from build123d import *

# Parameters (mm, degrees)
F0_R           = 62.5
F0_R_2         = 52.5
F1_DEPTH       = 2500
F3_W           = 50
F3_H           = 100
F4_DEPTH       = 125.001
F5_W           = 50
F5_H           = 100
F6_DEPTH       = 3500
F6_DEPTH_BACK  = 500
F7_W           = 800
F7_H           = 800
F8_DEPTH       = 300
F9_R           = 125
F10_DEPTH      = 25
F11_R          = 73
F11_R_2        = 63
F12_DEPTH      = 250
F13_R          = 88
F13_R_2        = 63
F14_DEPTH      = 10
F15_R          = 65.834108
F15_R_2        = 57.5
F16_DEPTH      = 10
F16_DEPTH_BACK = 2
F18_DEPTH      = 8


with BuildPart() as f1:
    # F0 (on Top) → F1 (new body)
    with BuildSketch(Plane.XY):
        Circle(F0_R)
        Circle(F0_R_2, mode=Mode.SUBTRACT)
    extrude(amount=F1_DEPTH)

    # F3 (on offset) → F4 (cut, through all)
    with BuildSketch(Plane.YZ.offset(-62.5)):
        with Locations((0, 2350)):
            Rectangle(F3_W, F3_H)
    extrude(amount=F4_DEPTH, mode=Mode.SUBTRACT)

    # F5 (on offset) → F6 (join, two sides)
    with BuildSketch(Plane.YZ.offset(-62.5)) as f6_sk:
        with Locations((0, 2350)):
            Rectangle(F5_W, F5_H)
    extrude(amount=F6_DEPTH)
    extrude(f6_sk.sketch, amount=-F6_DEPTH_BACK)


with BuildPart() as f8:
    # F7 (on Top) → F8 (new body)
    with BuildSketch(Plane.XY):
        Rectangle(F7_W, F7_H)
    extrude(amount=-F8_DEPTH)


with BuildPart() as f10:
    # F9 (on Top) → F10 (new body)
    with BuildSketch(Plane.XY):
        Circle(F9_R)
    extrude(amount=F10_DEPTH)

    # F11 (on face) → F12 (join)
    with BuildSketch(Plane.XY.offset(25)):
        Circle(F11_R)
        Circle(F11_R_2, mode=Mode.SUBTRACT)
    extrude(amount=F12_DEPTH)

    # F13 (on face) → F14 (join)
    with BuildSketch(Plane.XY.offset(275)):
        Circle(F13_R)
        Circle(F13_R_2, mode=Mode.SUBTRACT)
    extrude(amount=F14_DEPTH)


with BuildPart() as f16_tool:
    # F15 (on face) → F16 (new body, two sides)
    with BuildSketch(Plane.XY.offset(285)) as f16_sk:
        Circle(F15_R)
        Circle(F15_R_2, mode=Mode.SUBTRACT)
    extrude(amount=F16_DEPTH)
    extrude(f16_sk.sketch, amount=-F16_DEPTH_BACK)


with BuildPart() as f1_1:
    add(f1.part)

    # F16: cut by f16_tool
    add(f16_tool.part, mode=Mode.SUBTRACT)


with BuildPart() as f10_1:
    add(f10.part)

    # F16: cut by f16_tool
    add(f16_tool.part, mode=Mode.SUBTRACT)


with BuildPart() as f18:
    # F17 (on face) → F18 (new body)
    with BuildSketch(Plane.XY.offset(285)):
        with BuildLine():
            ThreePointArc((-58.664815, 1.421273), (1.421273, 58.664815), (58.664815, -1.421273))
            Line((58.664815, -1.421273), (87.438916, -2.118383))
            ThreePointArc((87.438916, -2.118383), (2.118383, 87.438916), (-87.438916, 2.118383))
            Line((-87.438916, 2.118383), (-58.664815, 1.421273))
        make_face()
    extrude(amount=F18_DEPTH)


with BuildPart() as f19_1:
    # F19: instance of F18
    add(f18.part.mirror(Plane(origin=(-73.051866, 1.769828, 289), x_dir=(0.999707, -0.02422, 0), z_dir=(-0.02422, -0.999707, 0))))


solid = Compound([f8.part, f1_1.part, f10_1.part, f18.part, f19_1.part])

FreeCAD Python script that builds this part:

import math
import FreeCAD as App
import Part
import Sketcher
from FreeCAD import Vector


def add_polygon(sketch, points):
    """Adds a closed chain of lines whose ends are joined by coincident constraints."""
    first, n = sketch.GeometryCount, len(points)
    for a, b in zip(points, points[1:] + points[:1]):
        sketch.addGeometry(Part.LineSegment(App.Vector(*a, 0), App.Vector(*b, 0)), False)
    for i in range(n):
        sketch.addConstraint(Sketcher.Constraint("Coincident", first + i, 2, first + (i + 1) % n, 1))

doc = App.newDocument("Part")
body = doc.addObject("PartDesign::Body", "Body")

sketch1 = body.newObject("Sketcher::SketchObject", "Sketch")
sketch1.AttachmentSupport = (doc.getObject("XY_Plane"), [""])
sketch1.MapMode = "FlatFace"
sketch1.addGeometry([
    Part.Circle(Vector(0, 0, 0), Vector(0, 0, 1), 62),
    Part.Circle(Vector(0, 0, 0), Vector(0, 0, 1), 52),
], False)
sketch1.addConstraint([
    Sketcher.Constraint("Coincident", 0, 3, -1, 1),
    Sketcher.Constraint("Coincident", 1, 3, -1, 1),
    Sketcher.Constraint("Diameter", 0, 125.0),
    Sketcher.Constraint("Diameter", 1, 105.0),
])
pad1 = body.newObject("PartDesign::Pad", "Pad")
pad1.Profile = sketch1
pad1.Length = 2500

sketch2 = body.newObject("Sketcher::SketchObject", "Sketch001")
sketch2.AttachmentSupport = (doc.getObject("YZ_Plane"), [""])
sketch2.MapMode = "FlatFace"
sketch2.AttachmentOffset = App.Placement(Vector(0, 0, -62.5), App.Rotation())
add_polygon(sketch2, [(-25, 2400), (-25, 2300), (25, 2300), (25, 2400)])
sketch2.addConstraint([
    Sketcher.Constraint("Vertical", 0),
    Sketcher.Constraint("Horizontal", 1),
    Sketcher.Constraint("Vertical", 2),
    Sketcher.Constraint("Horizontal", 3),
    Sketcher.Constraint("DistanceX", 1, 1, 1, 2, 50.0),
    Sketcher.Constraint("DistanceY", 0, 2, 0, 1, 100.0),
    Sketcher.Constraint("DistanceX", 0, 2, -1, 1, 25.0),
    Sketcher.Constraint("DistanceY", -1, 1, 0, 2, 2300.0),
])
pocket1 = body.newObject("PartDesign::Pocket", "Pocket")
pocket1.Profile = sketch2
pocket1.Type = "ThroughAll"
pocket1.Reversed = True

sketch3 = body.newObject("Sketcher::SketchObject", "Sketch002")
sketch3.AttachmentSupport = (doc.getObject("YZ_Plane"), [""])
sketch3.MapMode = "FlatFace"
sketch3.AttachmentOffset = App.Placement(Vector(0, 0, -62.5), App.Rotation())
add_polygon(sketch3, [(-25, 2400), (-25, 2300), (25, 2300), (25, 2400)])
sketch3.addConstraint([
    Sketcher.Constraint("Vertical", 0),
    Sketcher.Constraint("Horizontal", 1),
    Sketcher.Constraint("Vertical", 2),
    Sketcher.Constraint("Horizontal", 3),
    Sketcher.Constraint("DistanceX", 1, 1, 1, 2, 50.0),
    Sketcher.Constraint("DistanceY", 0, 2, 0, 1, 100.0),
    Sketcher.Constraint("DistanceX", 0, 2, -1, 1, 25.0),
    Sketcher.Constraint("DistanceY", -1, 1, 0, 2, 2300.0),
])
pad2 = body.newObject("PartDesign::Pad", "Pad001")
pad2.Profile = sketch3
pad2.Type = "TwoLengths"
pad2.Length = 3500
pad2.Length2 = 500
body2 = doc.addObject("PartDesign::Body", "Body001")

sketch4 = body2.newObject("Sketcher::SketchObject", "Sketch003")
sketch4.AttachmentSupport = (doc.getObject("XY_Plane001"), [""])
sketch4.MapMode = "FlatFace"
add_polygon(sketch4, [(-400, 400), (-400, -400), (400, -400), (400, 400)])
sketch4.addConstraint([
    Sketcher.Constraint("Vertical", 0),
    Sketcher.Constraint("Horizontal", 1),
    Sketcher.Constraint("Vertical", 2),
    Sketcher.Constraint("Horizontal", 3),
    Sketcher.Constraint("Symmetric", 0, 2, 2, 2, -1, 1),
    Sketcher.Constraint("Equal", 3, 0),
    Sketcher.Constraint("DistanceX", 1, 1, 1, 2, 800.0),
])
pad3 = body2.newObject("PartDesign::Pad", "Pad002")
pad3.Profile = sketch4
pad3.Length = 300
pad3.Reversed = True
body3 = doc.addObject("PartDesign::Body", "Body002")

sketch5 = body3.newObject("Sketcher::SketchObject", "Sketch004")
sketch5.AttachmentSupport = (doc.getObject("XY_Plane002"), [""])
sketch5.MapMode = "FlatFace"
sketch5.addGeometry(Part.Circle(Vector(0, 0, 0), Vector(0, 0, 1), 125), False)
sketch5.addConstraint([
    Sketcher.Constraint("Coincident", 0, 3, -1, 1),
    Sketcher.Constraint("Diameter", 0, 250.0),
])
pad4 = body3.newObject("PartDesign::Pad", "Pad003")
pad4.Profile = sketch5
pad4.Length = 25

sketch6 = body3.newObject("Sketcher::SketchObject", "Sketch005")
sketch6.AttachmentSupport = (doc.getObject("XY_Plane002"), [""])
sketch6.MapMode = "FlatFace"
sketch6.AttachmentOffset = App.Placement(Vector(0, 0, 25), App.Rotation())
sketch6.addGeometry([
    Part.Circle(Vector(0, 0, 0), Vector(0, 0, 1), 73),
    Part.Circle(Vector(0, 0, 0), Vector(0, 0, 1), 63),
], False)
sketch6.addConstraint([
    Sketcher.Constraint("Coincident", 0, 3, -1, 1),
    Sketcher.Constraint("Coincident", 1, 3, -1, 1),
    Sketcher.Constraint("Diameter", 0, 146.0),
    Sketcher.Constraint("Diameter", 1, 126.0),
])
pad5 = body3.newObject("PartDesign::Pad", "Pad004")
pad5.Profile = sketch6
pad5.Length = 250

sketch7 = body3.newObject("Sketcher::SketchObject", "Sketch006")
sketch7.AttachmentSupport = (doc.getObject("XY_Plane002"), [""])
sketch7.MapMode = "FlatFace"
sketch7.AttachmentOffset = App.Placement(Vector(0, 0, 275), App.Rotation())
sketch7.addGeometry([
    Part.Circle(Vector(0, 0, 0), Vector(0, 0, 1), 88),
    Part.Circle(Vector(0, 0, 0), Vector(0, 0, 1), 63),
], False)
sketch7.addConstraint([
    Sketcher.Constraint("Coincident", 0, 3, -1, 1),
    Sketcher.Constraint("Coincident", 1, 3, -1, 1),
    Sketcher.Constraint("Diameter", 0, 176.0),
    Sketcher.Constraint("Diameter", 1, 126.0),
])
pad6 = body3.newObject("PartDesign::Pad", "Pad005")
pad6.Profile = sketch7
pad6.Length = 10
body4 = doc.addObject("PartDesign::Body", "Body003")

sketch8 = body4.newObject("Sketcher::SketchObject", "Sketch007")
sketch8.AttachmentSupport = (doc.getObject("XY_Plane003"), [""])
sketch8.MapMode = "FlatFace"
sketch8.AttachmentOffset = App.Placement(Vector(0, 0, 285), App.Rotation())
sketch8.addGeometry([
    Part.Circle(Vector(0, 0, 0), Vector(0, 0, 1), 66),
    Part.Circle(Vector(0, 0, 0), Vector(0, 0, 1), 58),
], False)
sketch8.addConstraint([
    Sketcher.Constraint("Coincident", 0, 3, -1, 1),
    Sketcher.Constraint("Coincident", 1, 3, -1, 1),
    Sketcher.Constraint("Diameter", 1, 115.0),
    Sketcher.Constraint("Diameter", 0, 131.668216),
])
pad7 = body4.newObject("PartDesign::Pad", "Pad006")
pad7.Profile = sketch8
pad7.Type = "TwoLengths"
pad7.Length = 10
pad7.Length2 = 2
doc.recompute()

body5 = doc.addObject("PartDesign::Body", "Body004")
body5.BaseFeature = body4
boolean = body.newObject("PartDesign::Boolean", "Boolean")
boolean.Type = "Cut"
boolean.addObjects([body5])
doc.recompute()

boolean2 = body3.newObject("PartDesign::Boolean", "Boolean001")
boolean2.Type = "Cut"
boolean2.addObjects([body4])
body6 = doc.addObject("PartDesign::Body", "Body005")

sketch9 = body6.newObject("Sketcher::SketchObject", "Sketch008")
sketch9.AttachmentSupport = (doc.getObject("XY_Plane005"), [""])
sketch9.MapMode = "FlatFace"
sketch9.AttachmentOffset = App.Placement(Vector(0, 0, 285), App.Rotation())
sketch9.addGeometry([
    Part.ArcOfCircle(Part.Circle(Vector(0, 0, 0), Vector(0, 0, 1), 59), math.radians(-1), math.radians(179)),
    Part.LineSegment(Vector(59, -1, 0), Vector(87, -2, 0)),
    Part.ArcOfCircle(Part.Circle(Vector(0, 0, 0), Vector(0, 0, 1), 87), math.radians(-1), math.radians(179)),
    Part.LineSegment(Vector(-87, 2, 0), Vector(-59, 1, 0)),
], False)
sketch9.addConstraint([
    Sketcher.Constraint("Coincident", 0, 1, 1, 1),
    Sketcher.Constraint("Coincident", 1, 2, 2, 1),
    Sketcher.Constraint("Coincident", 2, 2, 3, 1),
    Sketcher.Constraint("Coincident", 3, 2, 0, 2),
    Sketcher.Constraint("Coincident", 0, 3, -1, 1),
    Sketcher.Constraint("Coincident", 2, 3, -1, 1),
    Sketcher.Constraint("Parallel", 1, 3),
    Sketcher.Constraint("Radius", 0, 58.682029),
    Sketcher.Constraint("Radius", 2, 87.464573),
    Sketcher.Constraint("DistanceX", 0, 1, 1, 2, 28.774101),
    Sketcher.Constraint("DistanceX", 2, 2, 0, 1, 146.103731),
    Sketcher.Constraint("DistanceX", -1, 1, 0, 1, 58.664815),
])
pad8 = body6.newObject("PartDesign::Pad", "Pad007")
pad8.Profile = sketch9
pad8.Length = 8
body7 = doc.addObject("PartDesign::Body", "Body006")
doc.recompute()

mirroring = doc.addObject("Part::Mirroring", "Mirroring")
mirroring.Source = body6
mirroring.Base = Vector(-73.051866, 1.769828, 289)
mirroring.Normal = Vector(-0.024219992, -0.999706653, 0)
body7.BaseFeature = mirroring
doc.recompute()
mirroring.Visibility = False

doc.recompute()
